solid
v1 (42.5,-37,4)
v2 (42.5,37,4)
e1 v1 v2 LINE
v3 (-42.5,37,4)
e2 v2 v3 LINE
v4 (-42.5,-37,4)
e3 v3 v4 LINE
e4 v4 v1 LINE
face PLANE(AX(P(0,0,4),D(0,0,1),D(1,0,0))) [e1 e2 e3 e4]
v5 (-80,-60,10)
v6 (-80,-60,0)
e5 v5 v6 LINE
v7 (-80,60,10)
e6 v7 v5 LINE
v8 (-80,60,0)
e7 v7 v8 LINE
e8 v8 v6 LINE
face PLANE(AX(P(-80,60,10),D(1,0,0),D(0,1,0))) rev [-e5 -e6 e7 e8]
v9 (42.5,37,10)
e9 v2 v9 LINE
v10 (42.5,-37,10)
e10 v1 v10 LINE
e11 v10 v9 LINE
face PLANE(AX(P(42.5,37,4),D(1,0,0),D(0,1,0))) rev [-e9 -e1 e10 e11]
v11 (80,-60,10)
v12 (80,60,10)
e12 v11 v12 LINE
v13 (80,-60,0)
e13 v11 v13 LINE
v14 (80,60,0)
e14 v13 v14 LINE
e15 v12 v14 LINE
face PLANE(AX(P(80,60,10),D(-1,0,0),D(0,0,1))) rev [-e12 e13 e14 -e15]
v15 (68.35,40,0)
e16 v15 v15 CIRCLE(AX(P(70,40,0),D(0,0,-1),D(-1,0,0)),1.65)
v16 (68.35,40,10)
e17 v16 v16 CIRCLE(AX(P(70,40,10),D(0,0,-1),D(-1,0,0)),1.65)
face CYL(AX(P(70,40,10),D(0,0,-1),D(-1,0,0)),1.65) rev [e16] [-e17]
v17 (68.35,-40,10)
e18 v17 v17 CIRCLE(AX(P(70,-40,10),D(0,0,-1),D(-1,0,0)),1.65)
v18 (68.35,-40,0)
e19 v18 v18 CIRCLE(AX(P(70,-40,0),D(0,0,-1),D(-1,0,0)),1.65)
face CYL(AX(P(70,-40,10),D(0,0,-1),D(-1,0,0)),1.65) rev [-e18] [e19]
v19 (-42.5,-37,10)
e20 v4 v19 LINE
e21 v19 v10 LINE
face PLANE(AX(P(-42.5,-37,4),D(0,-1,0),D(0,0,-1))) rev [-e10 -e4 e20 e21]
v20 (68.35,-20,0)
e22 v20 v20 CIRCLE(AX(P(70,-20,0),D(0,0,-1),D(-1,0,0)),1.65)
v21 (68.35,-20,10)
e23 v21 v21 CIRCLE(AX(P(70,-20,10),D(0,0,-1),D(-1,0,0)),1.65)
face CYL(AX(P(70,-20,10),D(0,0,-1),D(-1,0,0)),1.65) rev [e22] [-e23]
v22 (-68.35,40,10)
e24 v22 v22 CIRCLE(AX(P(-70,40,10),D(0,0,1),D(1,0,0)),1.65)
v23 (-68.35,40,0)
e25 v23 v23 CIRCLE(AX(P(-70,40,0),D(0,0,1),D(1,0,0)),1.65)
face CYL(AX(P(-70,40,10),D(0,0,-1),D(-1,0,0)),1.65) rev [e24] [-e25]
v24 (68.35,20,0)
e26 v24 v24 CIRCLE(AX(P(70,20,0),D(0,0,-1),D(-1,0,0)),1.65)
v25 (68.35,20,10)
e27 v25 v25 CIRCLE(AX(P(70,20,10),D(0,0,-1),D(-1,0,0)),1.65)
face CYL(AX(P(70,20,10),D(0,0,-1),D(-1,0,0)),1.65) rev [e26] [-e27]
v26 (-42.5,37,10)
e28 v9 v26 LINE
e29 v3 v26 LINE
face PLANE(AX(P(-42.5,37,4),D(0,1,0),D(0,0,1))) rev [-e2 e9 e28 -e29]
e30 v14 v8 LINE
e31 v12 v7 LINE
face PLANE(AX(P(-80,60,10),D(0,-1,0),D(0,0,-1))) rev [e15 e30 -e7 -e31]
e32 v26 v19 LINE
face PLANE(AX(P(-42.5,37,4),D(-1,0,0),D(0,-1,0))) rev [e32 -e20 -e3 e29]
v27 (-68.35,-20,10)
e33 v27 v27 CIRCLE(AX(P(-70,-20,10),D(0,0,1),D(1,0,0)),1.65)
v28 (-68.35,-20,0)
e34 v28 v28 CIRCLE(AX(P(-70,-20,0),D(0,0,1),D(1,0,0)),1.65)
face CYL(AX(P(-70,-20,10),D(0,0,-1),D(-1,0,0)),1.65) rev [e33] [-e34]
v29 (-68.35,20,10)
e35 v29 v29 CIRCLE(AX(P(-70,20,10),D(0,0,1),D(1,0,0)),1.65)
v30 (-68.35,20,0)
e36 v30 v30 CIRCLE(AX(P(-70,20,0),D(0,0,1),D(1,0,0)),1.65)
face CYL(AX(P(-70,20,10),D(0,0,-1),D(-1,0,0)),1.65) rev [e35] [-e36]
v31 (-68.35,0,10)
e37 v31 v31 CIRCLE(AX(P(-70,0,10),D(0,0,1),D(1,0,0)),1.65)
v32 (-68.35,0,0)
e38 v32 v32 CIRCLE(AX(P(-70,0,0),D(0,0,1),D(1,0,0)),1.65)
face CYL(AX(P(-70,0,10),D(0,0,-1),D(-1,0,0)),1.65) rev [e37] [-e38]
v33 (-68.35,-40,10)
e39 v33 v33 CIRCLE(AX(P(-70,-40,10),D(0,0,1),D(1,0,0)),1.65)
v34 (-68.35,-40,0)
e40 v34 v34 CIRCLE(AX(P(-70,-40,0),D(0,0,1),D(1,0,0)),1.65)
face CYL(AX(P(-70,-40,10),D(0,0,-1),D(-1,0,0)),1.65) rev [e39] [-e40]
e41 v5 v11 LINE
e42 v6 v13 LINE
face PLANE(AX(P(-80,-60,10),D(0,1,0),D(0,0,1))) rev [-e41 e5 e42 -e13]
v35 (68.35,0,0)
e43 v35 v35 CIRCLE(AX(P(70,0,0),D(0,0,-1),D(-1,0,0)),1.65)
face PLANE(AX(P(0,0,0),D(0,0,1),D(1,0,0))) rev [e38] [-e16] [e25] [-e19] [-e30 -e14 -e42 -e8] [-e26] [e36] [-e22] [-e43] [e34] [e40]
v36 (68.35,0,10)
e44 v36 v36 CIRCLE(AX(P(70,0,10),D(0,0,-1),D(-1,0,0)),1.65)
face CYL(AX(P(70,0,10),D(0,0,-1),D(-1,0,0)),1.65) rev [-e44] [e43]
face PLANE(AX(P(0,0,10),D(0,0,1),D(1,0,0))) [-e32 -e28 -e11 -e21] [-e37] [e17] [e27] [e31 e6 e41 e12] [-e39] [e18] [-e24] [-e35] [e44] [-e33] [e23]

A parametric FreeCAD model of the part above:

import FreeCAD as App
import Part
import Sketcher
Q = App.Units.Quantity

doc = App.newDocument("Part")
body = doc.addObject("PartDesign::Body", "Body")

sketch1 = doc.addObject("Sketcher::SketchObject", "Sketch")
body.addObject(sketch1)
sketch1.AttachmentSupport = (doc.XY_Plane, [""])
sketch1.MapMode = "FlatFace"
sketch1.addGeometry(Part.LineSegment(App.Vector(-80, 60, 0), App.Vector(-80, -60, 0)), False)
sketch1.addGeometry(Part.LineSegment(App.Vector(-80, -60, 0), App.Vector(80, -60, 0)), False)
sketch1.addGeometry(Part.LineSegment(App.Vector(80, -60, 0), App.Vector(80, 60, 0)), False)
sketch1.addGeometry(Part.LineSegment(App.Vector(80, 60, 0), App.Vector(-80, 60, 0)), False)
sketch1.addConstraint(Sketcher.Constraint("Coincident", 0, 2, 1, 1))
sketch1.addConstraint(Sketcher.Constraint("Coincident", 1, 2, 2, 1))
sketch1.addConstraint(Sketcher.Constraint("Coincident", 2, 2, 3, 1))
sketch1.addConstraint(Sketcher.Constraint("Coincident", 3, 2, 0, 1))
sketch1.addConstraint(Sketcher.Constraint("Vertical", 0))
sketch1.addConstraint(Sketcher.Constraint("Horizontal", 1))
sketch1.addConstraint(Sketcher.Constraint("Vertical", 2))
sketch1.addConstraint(Sketcher.Constraint("Horizontal", 3))
sketch1.addConstraint(Sketcher.Constraint("Symmetric", 0, 2, 2, 2, -1, 1))
sketch1.addConstraint(Sketcher.Constraint("DistanceX", 1, 1, 1, 2, Q("160 mm")))
sketch1.addConstraint(Sketcher.Constraint("DistanceY", 0, 2, 0, 1, Q("120 mm")))
pad1 = doc.addObject("PartDesign::Pad", "Pad")
body.addObject(pad1)
pad1.Profile = sketch1
pad1.Length = 10

sketch2 = doc.addObject("Sketcher::SketchObject", "Sketch001")
body.addObject(sketch2)
sketch2.AttachmentSupport = (doc.XY_Plane, [""])
sketch2.MapMode = "FlatFace"
sketch2.AttachmentOffset = App.Placement(App.Vector(0, 0, 10), App.Rotation())
sketch2.addGeometry(Part.LineSegment(App.Vector(-42.5, 37, 0), App.Vector(-42.5, -37, 0)), False)
sketch2.addGeometry(Part.LineSegment(App.Vector(-42.5, -37, 0), App.Vector(42.5, -37, 0)), False)
sketch2.addGeometry(Part.LineSegment(App.Vector(42.5, -37, 0), App.Vector(42.5, 37, 0)), False)
sketch2.addGeometry(Part.LineSegment(App.Vector(42.5, 37, 0), App.Vector(-42.5, 37, 0)), False)
sketch2.addConstraint(Sketcher.Constraint("Coincident", 0, 2, 1, 1))
sketch2.addConstraint(Sketcher.Constraint("Coincident", 1, 2, 2, 1))
sketch2.addConstraint(Sketcher.Constraint("Coincident", 2, 2, 3, 1))
sketch2.addConstraint(Sketcher.Constraint("Coincident", 3, 2, 0, 1))
sketch2.addConstraint(Sketcher.Constraint("Vertical", 0))
sketch2.addConstraint(Sketcher.Constraint("Horizontal", 1))
sketch2.addConstraint(Sketcher.Constraint("Vertical", 2))
sketch2.addConstraint(Sketcher.Constraint("Horizontal", 3))
sketch2.addConstraint(Sketcher.Constraint("Symmetric", 0, 2, 2, 2, -1, 1))
sketch2.addConstraint(Sketcher.Constraint("DistanceX", 1, 1, 1, 2, Q("85 mm")))
sketch2.addConstraint(Sketcher.Constraint("DistanceY", 0, 2, 0, 1, Q("74 mm")))
pocket1 = doc.addObject("PartDesign::Pocket", "Pocket")
body.addObject(pocket1)
pocket1.Profile = sketch2
pocket1.Length = 6

sketch3 = doc.addObject("Sketcher::SketchObject", "Sketch002")
body.addObject(sketch3)
sketch3.AttachmentSupport = (doc.XY_Plane, [""])
sketch3.MapMode = "FlatFace"
sketch3.addGeometry(Part.Circle(App.Vector(70, 40, 0), App.Vector(0, 0, 1), 1.65), False)
sketch3.addGeometry(Part.Circle(App.Vector(70, 20, 0), App.Vector(0, 0, 1), 1.65), False)
sketch3.addGeometry(Part.Circle(App.Vector(70, 0, 0), App.Vector(0, 0, 1), 1.65), False)
sketch3.addGeometry(Part.Circle(App.Vector(70, -20, 0), App.Vector(0, 0, 1), 1.65), False)
sketch3.addGeometry(Part.Circle(App.Vector(70, -40, 0), App.Vector(0, 0, 1), 1.65), False)
sketch3.addConstraint(Sketcher.Constraint("Equal", 0, 1))
sketch3.addConstraint(Sketcher.Constraint("Equal", 1, 2))
sketch3.addConstraint(Sketcher.Constraint("Equal", 2, 3))
sketch3.addConstraint(Sketcher.Constraint("Equal", 3, 4))
sketch3.addConstraint(Sketcher.Constraint("Symmetric", 1, 3, 3, 3, -1))
sketch3.addConstraint(Sketcher.Constraint("Symmetric", 0, 3, 4, 3, -1))
sketch3.addConstraint(Sketcher.Constraint("PointOnObject", 2, 3, -1))
sketch3.addConstraint(Sketcher.Constraint("Vertical", 0, 3, 1, 3))
sketch3.addConstraint(Sketcher.Constraint("Vertical", 1, 3, 2, 3))
sketch3.addConstraint(Sketcher.Constraint("Diameter", 0, Q("3.3 mm")))
sketch3.addConstraint(Sketcher.Constraint("DistanceX", -1, 1, 0, 3, Q("70 mm")))
sketch3.addConstraint(Sketcher.Constraint("DistanceY", -1, 1, 0, 3, Q("40 mm")))
sketch3.addConstraint(Sketcher.Constraint("DistanceY", -1, 1, 1, 3, Q("20 mm")))
pocket2 = doc.addObject("PartDesign::Pocket", "Pocket001")
body.addObject(pocket2)
pocket2.Profile = sketch3
pocket2.Type = "ThroughAll"
pocket2.Reversed = True
doc.recompute()

mirrored = doc.addObject("PartDesign::Mirrored", "Mirrored")
body.addObject(mirrored)
mirrored.Originals = [pocket2]
mirrored.MirrorPlane = (doc.YZ_Plane, [""])
body.Tip = mirrored

doc.recompute()
